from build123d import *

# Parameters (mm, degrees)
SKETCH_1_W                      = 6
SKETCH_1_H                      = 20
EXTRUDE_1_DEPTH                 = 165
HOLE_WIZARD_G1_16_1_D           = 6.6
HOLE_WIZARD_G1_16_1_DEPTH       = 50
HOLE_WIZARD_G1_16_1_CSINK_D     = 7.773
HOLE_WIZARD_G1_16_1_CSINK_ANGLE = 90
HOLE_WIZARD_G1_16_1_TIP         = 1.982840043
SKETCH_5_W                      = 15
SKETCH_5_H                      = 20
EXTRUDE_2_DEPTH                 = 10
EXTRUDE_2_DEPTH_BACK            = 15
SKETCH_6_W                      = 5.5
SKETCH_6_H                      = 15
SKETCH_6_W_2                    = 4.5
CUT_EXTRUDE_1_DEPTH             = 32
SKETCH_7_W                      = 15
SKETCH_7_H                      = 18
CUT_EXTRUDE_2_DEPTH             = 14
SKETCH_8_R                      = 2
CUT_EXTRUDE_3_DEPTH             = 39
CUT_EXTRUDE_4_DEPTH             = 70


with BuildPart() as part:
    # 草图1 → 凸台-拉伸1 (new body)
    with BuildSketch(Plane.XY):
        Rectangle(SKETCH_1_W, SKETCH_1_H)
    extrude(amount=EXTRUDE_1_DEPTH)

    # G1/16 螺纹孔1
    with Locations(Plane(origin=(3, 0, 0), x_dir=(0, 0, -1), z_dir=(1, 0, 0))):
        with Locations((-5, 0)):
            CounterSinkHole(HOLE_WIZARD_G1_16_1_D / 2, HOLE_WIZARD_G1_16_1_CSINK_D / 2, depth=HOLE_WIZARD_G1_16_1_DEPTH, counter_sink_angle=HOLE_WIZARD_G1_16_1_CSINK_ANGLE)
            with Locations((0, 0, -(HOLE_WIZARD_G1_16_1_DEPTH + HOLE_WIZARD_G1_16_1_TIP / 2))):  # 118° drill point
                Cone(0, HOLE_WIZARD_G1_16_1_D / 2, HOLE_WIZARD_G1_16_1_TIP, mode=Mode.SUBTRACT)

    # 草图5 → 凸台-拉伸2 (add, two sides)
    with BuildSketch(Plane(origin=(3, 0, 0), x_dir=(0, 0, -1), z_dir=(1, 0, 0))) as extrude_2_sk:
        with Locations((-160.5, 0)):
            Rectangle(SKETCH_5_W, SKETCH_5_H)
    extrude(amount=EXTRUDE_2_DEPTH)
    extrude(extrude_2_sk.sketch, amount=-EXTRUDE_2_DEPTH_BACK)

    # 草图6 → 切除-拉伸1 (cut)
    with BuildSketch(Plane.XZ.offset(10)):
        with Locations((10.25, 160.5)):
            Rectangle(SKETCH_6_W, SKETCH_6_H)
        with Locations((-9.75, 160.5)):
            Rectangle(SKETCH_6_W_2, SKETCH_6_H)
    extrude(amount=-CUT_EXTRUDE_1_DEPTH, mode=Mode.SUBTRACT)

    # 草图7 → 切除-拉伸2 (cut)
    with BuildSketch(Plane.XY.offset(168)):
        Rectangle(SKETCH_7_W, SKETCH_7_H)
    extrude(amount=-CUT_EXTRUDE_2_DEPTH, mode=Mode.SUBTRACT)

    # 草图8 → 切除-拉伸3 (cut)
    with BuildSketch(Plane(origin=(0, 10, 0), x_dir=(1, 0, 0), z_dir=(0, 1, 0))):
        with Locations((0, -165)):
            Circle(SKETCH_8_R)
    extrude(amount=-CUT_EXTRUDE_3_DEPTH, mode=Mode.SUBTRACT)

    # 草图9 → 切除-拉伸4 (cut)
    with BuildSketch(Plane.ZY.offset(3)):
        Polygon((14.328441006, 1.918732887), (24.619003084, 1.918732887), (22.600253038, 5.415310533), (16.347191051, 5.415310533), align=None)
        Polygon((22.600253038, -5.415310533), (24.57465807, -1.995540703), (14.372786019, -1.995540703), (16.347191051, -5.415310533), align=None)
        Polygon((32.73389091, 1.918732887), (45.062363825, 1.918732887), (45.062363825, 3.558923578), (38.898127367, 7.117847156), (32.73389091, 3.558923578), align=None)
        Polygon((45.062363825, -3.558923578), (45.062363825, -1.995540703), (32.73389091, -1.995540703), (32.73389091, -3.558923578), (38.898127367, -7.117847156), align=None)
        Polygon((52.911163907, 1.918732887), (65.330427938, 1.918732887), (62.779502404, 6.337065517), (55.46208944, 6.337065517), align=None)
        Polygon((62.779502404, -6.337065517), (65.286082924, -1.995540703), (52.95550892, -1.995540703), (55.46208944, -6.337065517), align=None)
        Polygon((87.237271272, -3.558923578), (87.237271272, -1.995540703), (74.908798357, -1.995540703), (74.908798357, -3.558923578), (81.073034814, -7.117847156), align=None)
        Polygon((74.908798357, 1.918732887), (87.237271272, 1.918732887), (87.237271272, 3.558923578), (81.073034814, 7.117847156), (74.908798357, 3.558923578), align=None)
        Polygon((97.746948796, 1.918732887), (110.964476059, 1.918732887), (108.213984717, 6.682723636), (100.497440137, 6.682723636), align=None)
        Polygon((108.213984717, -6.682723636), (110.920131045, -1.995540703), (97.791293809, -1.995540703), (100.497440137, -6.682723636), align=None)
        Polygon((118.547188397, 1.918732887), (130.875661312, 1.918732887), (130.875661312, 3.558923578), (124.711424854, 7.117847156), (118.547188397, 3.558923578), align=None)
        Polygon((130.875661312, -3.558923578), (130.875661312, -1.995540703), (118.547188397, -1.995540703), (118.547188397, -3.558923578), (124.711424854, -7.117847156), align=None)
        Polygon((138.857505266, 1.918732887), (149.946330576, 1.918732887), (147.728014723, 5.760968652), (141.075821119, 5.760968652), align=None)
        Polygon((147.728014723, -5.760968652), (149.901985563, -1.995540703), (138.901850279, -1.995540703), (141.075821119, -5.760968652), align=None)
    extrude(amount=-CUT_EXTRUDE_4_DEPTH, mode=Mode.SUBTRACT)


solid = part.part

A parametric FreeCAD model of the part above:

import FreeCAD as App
import Part
import Sketcher

V = App.Vector
Q = App.Units.Quantity

doc = App.newDocument("Part")
params = doc.addObject("Spreadsheet::Sheet", "Params")
for row, (alias, value) in enumerate([
    ("sketch1_width", "6 mm"),
    ("sketch1_height", "20 mm"),
    ("pad1_length", "165 mm"),
    ("sketch2_diameter", "6.6 mm"),
    ("hole_diameter", "6.6 mm"),
    ("hole_depth", "50 mm"),
    ("hole_csink_diameter", "7.773 mm"),
    ("sketch3_width", "20 mm"),
    ("sketch3_height", "15 mm"),
    ("pad2_length", "10 mm"),
    ("pad2_length2", "15 mm"),
    ("sketch4_height", "15 mm"),
    ("sketch4_width", "5.5 mm"),
    ("sketch4_width2", "4.5 mm"),
    ("pocket1_length", "32 mm"),
    ("sketch5_width", "15 mm"),
    ("sketch5_height", "18 mm"),
    ("pocket2_length", "14 mm"),
    ("sketch6_diameter", "4 mm"),
    ("pocket3_length", "39 mm"),
    ("pocket4_length", "70 mm"),
], start=1):
    params.set(f"A{row}", alias)
    params.set(f"B{row}", "=" + value)
    params.setAlias(f"B{row}", alias)

body = doc.addObject("PartDesign::Body", "Body")

sketch1 = body.newObject("Sketcher::SketchObject", "Sketch")
sketch1.AttachmentSupport = (doc.getObject("XY_Plane"), [""])
sketch1.MapMode = "FlatFace"
sketch1.addGeometry(Part.LineSegment(V(-3, 10, 0), V(-3, -10, 0)), False)
sketch1.addGeometry(Part.LineSegment(V(-3, -10, 0), V(3, -10, 0)), False)
sketch1.addGeometry(Part.LineSegment(V(3, -10, 0), V(3, 10, 0)), False)
sketch1.addGeometry(Part.LineSegment(V(3, 10, 0), V(-3, 10, 0)), False)
sketch1.addConstraint(Sketcher.Constraint("Coincident", 0, 2, 1, 1))
sketch1.addConstraint(Sketcher.Constraint("Coincident", 1, 2, 2, 1))
sketch1.addConstraint(Sketcher.Constraint("Coincident", 2, 2, 3, 1))
sketch1.addConstraint(Sketcher.Constraint("Coincident", 3, 2, 0, 1))
sketch1.addConstraint(Sketcher.Constraint("Vertical", 0))
sketch1.addConstraint(Sketcher.Constraint("Horizontal", 1))
sketch1.addConstraint(Sketcher.Constraint("Vertical", 2))
sketch1.addConstraint(Sketcher.Constraint("Horizontal", 3))
sketch1.addConstraint(Sketcher.Constraint("Symmetric", 0, 2, 2, 2, -1, 1))
sketch1.addConstraint(Sketcher.Constraint("DistanceX", 1, 1, 1, 2, Q("6 mm")))
sketch1.addConstraint(Sketcher.Constraint("DistanceY", 0, 2, 0, 1, Q("20 mm")))
sketch1.setExpression("Constraints[9]", "Params.sketch1_width")
sketch1.setExpression("Constraints[10]", "Params.sketch1_height")
pad1 = body.newObject("PartDesign::Pad", "Pad")
pad1.Profile = sketch1
pad1.setExpression("Length", "Params.pad1_length")

sketch2 = body.newObject("Sketcher::SketchObject", "Sketch001")
sketch2.AttachmentSupport = (doc.getObject("YZ_Plane"), [""])
sketch2.MapMode = "FlatFace"
sketch2.AttachmentOffset = App.Placement(V(0, 0, 3), App.Rotation())
sketch2.addGeometry(Part.Circle(V(0, 5, 0), V(0, 0, 1), 3.3), False)
sketch2.addConstraint(Sketcher.Constraint("PointOnObject", 0, 3, -2))
sketch2.addConstraint(Sketcher.Constraint("Diameter", 0, Q("6.6 mm")))
sketch2.addConstraint(Sketcher.Constraint("DistanceY", -1, 1, 0, 3, Q("5 mm")))
sketch2.setExpression("Constraints[1]", "Params.sketch2_diameter")
doc.recompute()
hole = body.newObject("PartDesign::Hole", "Hole")
hole.Profile = sketch2
hole.ThreadType = "None"
hole.setExpression("Diameter", "Params.hole_diameter")
hole.DepthType = "Dimension"
hole.setExpression("Depth", "Params.hole_depth")
hole.DrillPoint = "Angled"
hole.DrillPointAngle = 118
hole.HoleCutType = "Countersink"
hole.setExpression("HoleCutDiameter", "Params.hole_csink_diameter")
hole.HoleCutCountersinkAngle = 90

sketch3 = body.newObject("Sketcher::SketchObject", "Sketch002")
sketch3.AttachmentSupport = (doc.getObject("YZ_Plane"), [""])
sketch3.MapMode = "FlatFace"
sketch3.AttachmentOffset = App.Placement(V(0, 0, 3), App.Rotation())
sketch3.addGeometry(Part.LineSegment(V(10, 168, 0), V(-10, 168, 0)), False)
sketch3.addGeometry(Part.LineSegment(V(-10, 168, 0), V(-10, 153, 0)), False)
sketch3.addGeometry(Part.LineSegment(V(-10, 153, 0), V(10, 153, 0)), False)
sketch3.addGeometry(Part.LineSegment(V(10, 153, 0), V(10, 168, 0)), False)
sketch3.addConstraint(Sketcher.Constraint("Coincident", 0, 2, 1, 1))
sketch3.addConstraint(Sketcher.Constraint("Coincident", 1, 2, 2, 1))
sketch3.addConstraint(Sketcher.Constraint("Coincident", 2, 2, 3, 1))
sketch3.addConstraint(Sketcher.Constraint("Coincident", 3, 2, 0, 1))
sketch3.addConstraint(Sketcher.Constraint("Horizontal", 0))
sketch3.addConstraint(Sketcher.Constraint("Vertical", 1))
sketch3.addConstraint(Sketcher.Constraint("Horizontal", 2))
sketch3.addConstraint(Sketcher.Constraint("Vertical", 3))
sketch3.addConstraint(Sketcher.Constraint("DistanceX", 0, 2, 0, 1, Q("20 mm")))
sketch3.addConstraint(Sketcher.Constraint("DistanceY", 1, 2, 1, 1, Q("15 mm")))
sketch3.addConstraint(Sketcher.Constraint("DistanceX", 0, 2, -1, 1, Q("10 mm")))
sketch3.addConstraint(Sketcher.Constraint("DistanceY", -1, 1, 0, 2, Q("168 mm")))
sketch3.setExpression("Constraints[8]", "Params.sketch3_width")
sketch3.setExpression("Constraints[9]", "Params.sketch3_height")
pad2 = body.newObject("PartDesign::Pad", "Pad001")
pad2.Profile = sketch3
pad2.Type = "TwoLengths"
pad2.setExpression("Length", "Params.pad2_length")
pad2.setExpression("Length2", "Params.pad2_length2")

sketch4 = body.newObject("Sketcher::SketchObject", "Sketch003")
sketch4.AttachmentSupport = (doc.getObject("XZ_Plane"), [""])
sketch4.MapMode = "FlatFace"
sketch4.AttachmentOffset = App.Placement(V(0, 0, 10), App.Rotation())
sketch4.addGeometry(Part.LineSegment(V(7.5, 168, 0), V(7.5, 153, 0)), False)
sketch4.addGeometry(Part.LineSegment(V(7.5, 153, 0), V(13, 153, 0)), False)
sketch4.addGeometry(Part.LineSegment(V(13, 153, 0), V(13, 168, 0)), False)
sketch4.addGeometry(Part.LineSegment(V(13, 168, 0), V(7.5, 168, 0)), False)
sketch4.addGeometry(Part.LineSegment(V(-12, 168, 0), V(-12, 153, 0)), False)
sketch4.addGeometry(Part.LineSegment(V(-12, 153, 0), V(-7.5, 153, 0)), False)
sketch4.addGeometry(Part.LineSegment(V(-7.5, 153, 0), V(-7.5, 168, 0)), False)
sketch4.addGeometry(Part.LineSegment(V(-7.5, 168, 0), V(-12, 168, 0)), False)
sketch4.addConstraint(Sketcher.Constraint("Coincident", 0, 2, 1, 1))
sketch4.addConstraint(Sketcher.Constraint("Coincident", 1, 2, 2, 1))
sketch4.addConstraint(Sketcher.Constraint("Coincident", 2, 2, 3, 1))
sketch4.addConstraint(Sketcher.Constraint("Coincident", 3, 2, 0, 1))
sketch4.addConstraint(Sketcher.Constraint("Coincident", 4, 2, 5, 1))
sketch4.addConstraint(Sketcher.Constraint("Coincident", 5, 2, 6, 1))
sketch4.addConstraint(Sketcher.Constraint("Coincident", 6, 2, 7, 1))
sketch4.addConstraint(Sketcher.Constraint("Coincident", 7, 2, 4, 1))
sketch4.addConstraint(Sketcher.Constraint("Vertical", 0))
sketch4.addConstraint(Sketcher.Constraint("Horizontal", 1))
sketch4.addConstraint(Sketcher.Constraint("Vertical", 2))
sketch4.addConstraint(Sketcher.Constraint("Horizontal", 3))
sketch4.addConstraint(Sketcher.Constraint("Vertical", 4))
sketch4.addConstraint(Sketcher.Constraint("Horizontal", 5))
sketch4.addConstraint(Sketcher.Constraint("Vertical", 6))
sketch4.addConstraint(Sketcher.Constraint("Horizontal", 7))
sketch4.addConstraint(Sketcher.Constraint("Symmetric", 0, 2, 5, 2, -2))
sketch4.addConstraint(Sketcher.Constraint("Horizontal", 3, 2, 6, 2))
sketch4.addConstraint(Sketcher.Constraint("DistanceY", 0, 2, 0, 1, Q("15 mm")))
sketch4.addConstraint(Sketcher.Constraint("DistanceX", 1, 1, 1, 2, Q("5.5 mm")))
sketch4.addConstraint(Sketcher.Constraint("DistanceX", 5, 1, 5, 2, Q("4.5 mm")))
sketch4.addConstraint(Sketcher.Constraint("DistanceY", -1, 1, 0, 2, Q("153 mm")))
sketch4.addConstraint(Sketcher.Constraint("DistanceX", -1, 1, 1, 2, Q("13 mm")))
sketch4.setExpression("Constraints[18]", "Params.sketch4_height")
sketch4.setExpression("Constraints[19]", "Params.sketch4_width")
sketch4.setExpression("Constraints[20]", "Params.sketch4_width2")
pocket1 = body.newObject("PartDesign::Pocket", "Pocket")
pocket1.Profile = sketch4
pocket1.setExpression("Length", "Params.pocket1_length")

sketch5 = body.newObject("Sketcher::SketchObject", "Sketch004")
sketch5.AttachmentSupport = (doc.getObject("XY_Plane"), [""])
sketch5.MapMode = "FlatFace"
sketch5.AttachmentOffset = App.Placement(V(0, 0, 168), App.Rotation())
sketch5.addGeometry(Part.LineSegment(V(-8, 9, 0), V(-8, -9, 0)), False)
sketch5.addGeometry(Part.LineSegment(V(-8, -9, 0), V(8, -9, 0)), False)
sketch5.addGeometry(Part.LineSegment(V(8, -9, 0), V(8, 9, 0)), False)
sketch5.addGeometry(Part.LineSegment(V(8, 9, 0), V(-8, 9, 0)), False)
sketch5.addConstraint(Sketcher.Constraint("Coincident", 0, 2, 1, 1))
sketch5.addConstraint(Sketcher.Constraint("Coincident", 1, 2, 2, 1))
sketch5.addConstraint(Sketcher.Constraint("Coincident", 2, 2, 3, 1))
sketch5.addConstraint(Sketcher.Constraint("Coincident", 3, 2, 0, 1))
sketch5.addConstraint(Sketcher.Constraint("Vertical", 0))
sketch5.addConstraint(Sketcher.Constraint("Horizontal", 1))
sketch5.addConstraint(Sketcher.Constraint("Vertical", 2))
sketch5.addConstraint(Sketcher.Constraint("Horizontal", 3))
sketch5.addConstraint(Sketcher.Constraint("Symmetric", 0, 2, 2, 2, -1, 1))
sketch5.addConstraint(Sketcher.Constraint("DistanceX", 1, 1, 1, 2, Q("15 mm")))
sketch5.addConstraint(Sketcher.Constraint("DistanceY", 0, 2, 0, 1, Q("18 mm")))
sketch5.setExpression("Constraints[9]", "Params.sketch5_width")
sketch5.setExpression("Constraints[10]", "Params.sketch5_height")
pocket2 = body.newObject("PartDesign::Pocket", "Pocket001")
pocket2.Profile = sketch5
pocket2.setExpression("Length", "Params.pocket2_length")

sketch6 = body.newObject("Sketcher::SketchObject", "Sketch005")
sketch6.AttachmentSupport = (doc.getObject("XZ_Plane"), [""])
sketch6.MapMode = "FlatFace"
sketch6.AttachmentOffset = App.Placement(V(0, 0, -10), App.Rotation())
sketch6.addGeometry(Part.Circle(V(0, 165, 0), V(0, 0, 1), 2), False)
sketch6.addConstraint(Sketcher.Constraint("PointOnObject", 0, 3, -2))
sketch6.addConstraint(Sketcher.Constraint("Diameter", 0, Q("4 mm")))
sketch6.addConstraint(Sketcher.Constraint("DistanceY", -1, 1, 0, 3, Q("165 mm")))
sketch6.setExpression("Constraints[1]", "Params.sketch6_diameter")
pocket3 = body.newObject("PartDesign::Pocket", "Pocket002")
pocket3.Profile = sketch6
pocket3.setExpression("Length", "Params.pocket3_length")
pocket3.Reversed = True

sketch7 = body.newObject("Sketcher::SketchObject", "Sketch006")
sketch7.AttachmentSupport = (doc.getObject("YZ_Plane"), [""])
sketch7.MapMode = "FlatFace"
sketch7.AttachmentOffset = App.Placement(V(0, 0, -3), App.Rotation())
sketch7.addGeometry(Part.LineSegment(V(1.9, 14.3, 0), V(1.9, 24.6, 0)), False)
sketch7.addGeometry(Part.LineSegment(V(1.9, 24.6, 0), V(5.4, 22.6, 0)), False)
sketch7.addGeometry(Part.LineSegment(V(5.4, 22.6, 0), V(5.4, 16.3, 0)), False)
sketch7.addGeometry(Part.LineSegment(V(5.4, 16.3, 0), V(1.9, 14.3, 0)), False)
sketch7.addGeometry(Part.LineSegment(V(-5.4, 22.6, 0), V(-2, 24.6, 0)), False)
sketch7.addGeometry(Part.LineSegment(V(-2, 24.6, 0), V(-2, 14.4, 0)), False)
sketch7.addGeometry(Part.LineSegment(V(-2, 14.4, 0), V(-5.4, 16.3, 0)), False)
sketch7.addGeometry(Part.LineSegment(V(-5.4, 16.3, 0), V(-5.4, 22.6, 0)), False)
sketch7.addGeometry(Part.LineSegment(V(1.9, 32.7, 0), V(1.9, 45.1, 0)), False)
sketch7.addGeometry(Part.LineSegment(V(1.9, 45.1, 0), V(3.6, 45.1, 0)), False)
sketch7.addGeometry(Part.LineSegment(V(3.6, 45.1, 0), V(7.1, 38.9, 0)), False)
sketch7.addGeometry(Part.LineSegment(V(7.1, 38.9, 0), V(3.6, 32.7, 0)), False)
sketch7.addGeometry(Part.LineSegment(V(3.6, 32.7, 0), V(1.9, 32.7, 0)), False)
sketch7.addGeometry(Part.LineSegment(V(-3.6, 45.1, 0), V(-2, 45.1, 0)), False)
sketch7.addGeometry(Part.LineSegment(V(-2, 45.1, 0), V(-2, 32.7, 0)), False)
sketch7.addGeometry(Part.LineSegment(V(-2, 32.7, 0), V(-3.6, 32.7, 0)), False)
sketch7.addGeometry(Part.LineSegment(V(-3.6, 32.7, 0), V(-7.1, 38.9, 0)), False)
sketch7.addGeometry(Part.LineSegment(V(-7.1, 38.9, 0), V(-3.6, 45.1, 0)), False)
sketch7.addGeometry(Part.LineSegment(V(1.9, 52.9, 0), V(1.9, 65.3, 0)), False)
sketch7.addGeometry(Part.LineSegment(V(1.9, 65.3, 0), V(6.3, 62.8, 0)), False)
sketch7.addGeometry(Part.LineSegment(V(6.3, 62.8, 0), V(6.3, 55.5, 0)), False)
sketch7.addGeometry(Part.LineSegment(V(6.3, 55.5, 0), V(1.9, 52.9, 0)), False)
sketch7.addGeometry(Part.LineSegment(V(-6.3, 62.8, 0), V(-2, 65.3, 0)), False)
sketch7.addGeometry(Part.LineSegment(V(-2, 65.3, 0), V(-2, 53, 0)), False)
sketch7.addGeometry(Part.LineSegment(V(-2, 53, 0), V(-6.3, 55.5, 0)), False)
sketch7.addGeometry(Part.LineSegment(V(-6.3, 55.5, 0), V(-6.3, 62.8, 0)), False)
sketch7.addGeometry(Part.LineSegment(V(-3.6, 87.2, 0), V(-2, 87.2, 0)), False)
sketch7.addGeometry(Part.LineSegment(V(-2, 87.2, 0), V(-2, 74.9, 0)), False)
sketch7.addGeometry(Part.LineSegment(V(-2, 74.9, 0), V(-3.6, 74.9, 0)), False)
sketch7.addGeometry(Part.LineSegment(V(-3.6, 74.9, 0), V(-7.1, 81.1, 0)), False)
sketch7.addGeometry(Part.LineSegment(V(-7.1, 81.1, 0), V(-3.6, 87.2, 0)), False)
sketch7.addGeometry(Part.LineSegment(V(1.9, 74.9, 0), V(1.9, 87.2, 0)), False)
sketch7.addGeometry(Part.LineSegment(V(1.9, 87.2, 0), V(3.6, 87.2, 0)), False)
sketch7.addGeometry(Part.LineSegment(V(3.6, 87.2, 0), V(7.1, 81.1, 0)), False)
sketch7.addGeometry(Part.LineSegment(V(7.1, 81.1, 0), V(3.6, 74.9, 0)), False)
sketch7.addGeometry(Part.LineSegment(V(3.6, 74.9, 0), V(1.9, 74.9, 0)), False)
sketch7.addGeometry(Part.LineSegment(V(1.9, 97.7, 0), V(1.9, 111, 0)), False)
sketch7.addGeometry(Part.LineSegment(V(1.9, 111, 0), V(6.7, 108.2, 0)), False)
sketch7.addGeometry(Part.LineSegment(V(6.7, 108.2, 0), V(6.7, 100.5, 0)), False)
sketch7.addGeometry(Part.LineSegment(V(6.7, 100.5, 0), V(1.9, 97.7, 0)), False)
sketch7.addGeometry(Part.LineSegment(V(-6.7, 108.2, 0), V(-2, 110.9, 0)), False)
sketch7.addGeometry(Part.LineSegment(V(-2, 110.9, 0), V(-2, 97.8, 0)), False)
sketch7.addGeometry(Part.LineSegment(V(-2, 97.8, 0), V(-6.7, 100.5, 0)), False)
sketch7.addGeometry(Part.LineSegment(V(-6.7, 100.5, 0), V(-6.7, 108.2, 0)), False)
sketch7.addGeometry(Part.LineSegment(V(1.9, 118.5, 0), V(1.9, 130.9, 0)), False)
sketch7.addGeometry(Part.LineSegment(V(1.9, 130.9, 0), V(3.6, 130.9, 0)), False)
sketch7.addGeometry(Part.LineSegment(V(3.6, 130.9, 0), V(7.1, 124.7, 0)), False)
sketch7.addGeometry(Part.LineSegment(V(7.1, 124.7, 0), V(3.6, 118.5, 0)), False)
sketch7.addGeometry(Part.LineSegment(V(3.6, 118.5, 0), V(1.9, 118.5, 0)), False)
sketch7.addGeometry(Part.LineSegment(V(-3.6, 130.9, 0), V(-2, 130.9, 0)), False)
sketch7.addGeometry(Part.LineSegment(V(-2, 130.9, 0), V(-2, 118.5, 0)), False)
sketch7.addGeometry(Part.LineSegment(V(-2, 118.5, 0), V(-3.6, 118.5, 0)), False)
sketch7.addGeometry(Part.LineSegment(V(-3.6, 118.5, 0), V(-7.1, 124.7, 0)), False)
sketch7.addGeometry(Part.LineSegment(V(-7.1, 124.7, 0), V(-3.6, 130.9, 0)), False)
sketch7.addGeometry(Part.LineSegment(V(1.9, 138.9, 0), V(1.9, 149.9, 0)), False)
sketch7.addGeometry(Part.LineSegment(V(1.9, 149.9, 0), V(5.8, 147.7, 0)), False)
sketch7.addGeometry(Part.LineSegment(V(5.8, 147.7, 0), V(5.8, 141.1, 0)), False)
sketch7.addGeometry(Part.LineSegment(V(5.8, 141.1, 0), V(1.9, 138.9, 0)), False)
sketch7.addGeometry(Part.LineSegment(V(-5.8, 147.7, 0), V(-2, 149.9, 0)), False)
sketch7.addGeometry(Part.LineSegment(V(-2, 149.9, 0), V(-2, 138.9, 0)), False)
sketch7.addGeometry(Part.LineSegment(V(-2, 138.9, 0), V(-5.8, 141.1, 0)), False)
sketch7.addGeometry(Part.LineSegment(V(-5.8, 141.1, 0), V(-5.8, 147.7, 0)), False)
sketch7.addConstraint(Sketcher.Constraint("Coincident", 0, 2, 1, 1))
sketch7.addConstraint(Sketcher.Constraint("Coincident", 1, 2, 2, 1))
sketch7.addConstraint(Sketcher.Constraint("Coincident", 2, 2, 3, 1))
sketch7.addConstraint(Sketcher.Constraint("Coincident", 3, 2, 0, 1))
sketch7.addConstraint(Sketcher.Constraint("Coincident", 4, 2, 5, 1))
sketch7.addConstraint(Sketcher.Constraint("Coincident", 5, 2, 6, 1))
sketch7.addConstraint(Sketcher.Constraint("Coincident", 6, 2, 7, 1))
sketch7.addConstraint(Sketcher.Constraint("Coincident", 7, 2, 4, 1))
sketch7.addConstraint(Sketcher.Constraint("Coincident", 8, 2, 9, 1))
sketch7.addConstraint(Sketcher.Constraint("Coincident", 9, 2, 10, 1))
sketch7.addConstraint(Sketcher.Constraint("Coincident", 10, 2, 11, 1))
sketch7.addConstraint(Sketcher.Constraint("Coincident", 11, 2, 12, 1))
sketch7.addConstraint(Sketcher.Constraint("Coincident", 12, 2, 8, 1))
sketch7.addConstraint(Sketcher.Constraint("Coincident", 13, 2, 14, 1))
sketch7.addConstraint(Sketcher.Constraint("Coincident", 14, 2, 15, 1))
sketch7.addConstraint(Sketcher.Constraint("Coincident", 15, 2, 16, 1))
sketch7.addConstraint(Sketcher.Constraint("Coincident", 16, 2, 17, 1))
sketch7.addConstraint(Sketcher.Constraint("Coincident", 17, 2, 13, 1))
sketch7.addConstraint(Sketcher.Constraint("Coincident", 18, 2, 19, 1))
sketch7.addConstraint(Sketcher.Constraint("Coincident", 19, 2, 20, 1))
sketch7.addConstraint(Sketcher.Constraint("Coincident", 20, 2, 21, 1))
sketch7.addConstraint(Sketcher.Constraint("Coincident", 21, 2, 18, 1))
sketch7.addConstraint(Sketcher.Constraint("Coincident", 22, 2, 23, 1))
sketch7.addConstraint(Sketcher.Constraint("Coincident", 23, 2, 24, 1))
sketch7.addConstraint(Sketcher.Constraint("Coincident", 24, 2, 25, 1))
sketch7.addConstraint(Sketcher.Constraint("Coincident", 25, 2, 22, 1))
sketch7.addConstraint(Sketcher.Constraint("Coincident", 26, 2, 27, 1))
sketch7.addConstraint(Sketcher.Constraint("Coincident", 27, 2, 28, 1))
sketch7.addConstraint(Sketcher.Constraint("Coincident", 28, 2, 29, 1))
sketch7.addConstraint(Sketcher.Constraint("Coincident", 29, 2, 30, 1))
sketch7.addConstraint(Sketcher.Constraint("Coincident", 30, 2, 26, 1))
sketch7.addConstraint(Sketcher.Constraint("Coincident", 31, 2, 32, 1))
sketch7.addConstraint(Sketcher.Constraint("Coincident", 32, 2, 33, 1))
sketch7.addConstraint(Sketcher.Constraint("Coincident", 33, 2, 34, 1))
sketch7.addConstraint(Sketcher.Constraint("Coincident", 34, 2, 35, 1))
sketch7.addConstraint(Sketcher.Constraint("Coincident", 35, 2, 31, 1))
sketch7.addConstraint(Sketcher.Constraint("Coincident", 36, 2, 37, 1))
sketch7.addConstraint(Sketcher.Constraint("Coincident", 37, 2, 38, 1))
sketch7.addConstraint(Sketcher.Constraint("Coincident", 38, 2, 39, 1))
sketch7.addConstraint(Sketcher.Constraint("Coincident", 39, 2, 36, 1))
sketch7.addConstraint(Sketcher.Constraint("Coincident", 40, 2, 41, 1))
sketch7.addConstraint(Sketcher.Constraint("Coincident", 41, 2, 42, 1))
sketch7.addConstraint(Sketcher.Constraint("Coincident", 42, 2, 43, 1))
sketch7.addConstraint(Sketcher.Constraint("Coincident", 43, 2, 40, 1))
sketch7.addConstraint(Sketcher.Constraint("Coincident", 44, 2, 45, 1))
sketch7.addConstraint(Sketcher.Constraint("Coincident", 45, 2, 46, 1))
sketch7.addConstraint(Sketcher.Constraint("Coincident", 46, 2, 47, 1))
sketch7.addConstraint(Sketcher.Constraint("Coincident", 47, 2, 48, 1))
sketch7.addConstraint(Sketcher.Constraint("Coincident", 48, 2, 44, 1))
sketch7.addConstraint(Sketcher.Constraint("Coincident", 49, 2, 50, 1))
sketch7.addConstraint(Sketcher.Constraint("Coincident", 50, 2, 51, 1))
sketch7.addConstraint(Sketcher.Constraint("Coincident", 51, 2, 52, 1))
sketch7.addConstraint(Sketcher.Constraint("Coincident", 52, 2, 53, 1))
sketch7.addConstraint(Sketcher.Constraint("Coincident", 53, 2, 49, 1))
sketch7.addConstraint(Sketcher.Constraint("Coincident", 54, 2, 55, 1))
sketch7.addConstraint(Sketcher.Constraint("Coincident", 55, 2, 56, 1))
sketch7.addConstraint(Sketcher.Constraint("Coincident", 56, 2, 57, 1))
sketch7.addConstraint(Sketcher.Constraint("Coincident", 57, 2, 54, 1))
sketch7.addConstraint(Sketcher.Constraint("Coincident", 58, 2, 59, 1))
sketch7.addConstraint(Sketcher.Constraint("Coincident", 59, 2, 60, 1))
sketch7.addConstraint(Sketcher.Constraint("Coincident", 60, 2, 61, 1))
sketch7.addConstraint(Sketcher.Constraint("Coincident", 61, 2, 58, 1))
sketch7.addConstraint(Sketcher.Constraint("Vertical", 0))
sketch7.addConstraint(Sketcher.Constraint("Vertical", 2))
sketch7.addConstraint(Sketcher.Constraint("Vertical", 5))
sketch7.addConstraint(Sketcher.Constraint("Vertical", 7))
sketch7.addConstraint(Sketcher.Constraint("Vertical", 8))
sketch7.addConstraint(Sketcher.Constraint("Horizontal", 9))
sketch7.addConstraint(Sketcher.Constraint("Horizontal", 12))
sketch7.addConstraint(Sketcher.Constraint("Horizontal", 13))
sketch7.addConstraint(Sketcher.Constraint("Vertical", 14))
sketch7.addConstraint(Sketcher.Constraint("Horizontal", 15))
sketch7.addConstraint(Sketcher.Constraint("Vertical", 18))
sketch7.addConstraint(Sketcher.Constraint("Vertical", 20))
sketch7.addConstraint(Sketcher.Constraint("Vertical", 23))
sketch7.addConstraint(Sketcher.Constraint("Vertical", 25))
sketch7.addConstraint(Sketcher.Constraint("Horizontal", 26))
sketch7.addConstraint(Sketcher.Constraint("Vertical", 27))
sketch7.addConstraint(Sketcher.Constraint("Horizontal", 28))
sketch7.addConstraint(Sketcher.Constraint("Vertical", 31))
sketch7.addConstraint(Sketcher.Constraint("Horizontal", 32))
sketch7.addConstraint(Sketcher.Constraint("Horizontal", 35))
sketch7.addConstraint(Sketcher.Constraint("Vertical", 36))
sketch7.addConstraint(Sketcher.Constraint("Vertical", 38))
sketch7.addConstraint(Sketcher.Constraint("Vertical", 41))
sketch7.addConstraint(Sketcher.Constraint("Vertical", 43))
sketch7.addConstraint(Sketcher.Constraint("Vertical", 44))
sketch7.addConstraint(Sketcher.Constraint("Horizontal", 45))
sketch7.addConstraint(Sketcher.Constraint("Horizontal", 48))
sketch7.addConstraint(Sketcher.Constraint("Horizontal", 49))
sketch7.addConstraint(Sketcher.Constraint("Vertical", 50))
sketch7.addConstraint(Sketcher.Constraint("Horizontal", 51))
sketch7.addConstraint(Sketcher.Constraint("Vertical", 54))
sketch7.addConstraint(Sketcher.Constraint("Vertical", 56))
sketch7.addConstraint(Sketcher.Constraint("Vertical", 59))
sketch7.addConstraint(Sketcher.Constraint("Vertical", 61))
sketch7.addConstraint(Sketcher.Constraint("Symmetric", 2, 2, 6, 2, -2))
sketch7.addConstraint(Sketcher.Constraint("Symmetric", 11, 2, 15, 2, -2))
sketch7.addConstraint(Sketcher.Constraint("Symmetric", 10, 2, 16, 2, -2))
sketch7.addConstraint(Sketcher.Constraint("Symmetric", 9, 2, 17, 2, -2))
sketch7.addConstraint(Sketcher.Constraint("Symmetric", 20, 2, 24, 2, -2))
sketch7.addConstraint(Sketcher.Constraint("Symmetric", 30, 2, 32, 2, -2))
sketch7.addConstraint(Sketcher.Constraint("Symmetric", 29, 2, 33, 2, -2))
sketch7.addConstraint(Sketcher.Constraint("Symmetric", 28, 2, 34, 2, -2))
sketch7.addConstraint(Sketcher.Constraint("Symmetric", 38, 2, 42, 2, -2))
sketch7.addConstraint(Sketcher.Constraint("Symmetric", 47, 2, 51, 2, -2))
sketch7.addConstraint(Sketcher.Constraint("Symmetric", 46, 2, 52, 2, -2))
sketch7.addConstraint(Sketcher.Constraint("Symmetric", 45, 2, 53, 2, -2))
sketch7.addConstraint(Sketcher.Constraint("Symmetric", 56, 2, 60, 2, -2))
sketch7.addConstraint(Sketcher.Constraint("Parallel", 3, 4))
sketch7.addConstraint(Sketcher.Constraint("Parallel", 1, 6))
sketch7.addConstraint(Sketcher.Constraint("Perpendicular", 4, 10))
sketch7.addConstraint(Sketcher.Constraint("Perpendicular", 6, 11))
sketch7.addConstraint(Sketcher.Constraint("Parallel", 10, 16))
sketch7.addConstraint(Sketcher.Constraint("Perpendicular", 17, 19))
sketch7.addConstraint(Sketcher.Constraint("Perpendicular", 16, 21))
sketch7.addConstraint(Sketcher.Constraint("Parallel", 21, 22))
sketch7.addConstraint(Sketcher.Constraint("Parallel", 19, 24))
sketch7.addConstraint(Sketcher.Constraint("Perpendicular", 22, 29))
sketch7.addConstraint(Sketcher.Constraint("Perpendicular", 24, 30))
sketch7.addConstraint(Sketcher.Constraint("Perpendicular", 34, 37))
sketch7.addConstraint(Sketcher.Constraint("Perpendicular", 33, 39))
sketch7.addConstraint(Sketcher.Constraint("Parallel", 39, 40))
sketch7.addConstraint(Sketcher.Constraint("Parallel", 37, 42))
sketch7.addConstraint(Sketcher.Constraint("Perpendicular", 40, 46))
sketch7.addConstraint(Sketcher.Constraint("Perpendicular", 42, 47))
sketch7.addConstraint(Sketcher.Constraint("Perpendicular", 53, 55))
sketch7.addConstraint(Sketcher.Constraint("Perpendicular", 52, 57))
sketch7.addConstraint(Sketcher.Constraint("Parallel", 57, 58))
sketch7.addConstraint(Sketcher.Constraint("Parallel", 55, 60))
sketch7.addConstraint(Sketcher.Constraint("Horizontal", 1, 2, 7, 2))
sketch7.addConstraint(Sketcher.Constraint("Horizontal", 19, 2, 25, 2))
sketch7.addConstraint(Sketcher.Constraint("Horizontal", 37, 2, 43, 2))
sketch7.addConstraint(Sketcher.Constraint("Horizontal", 55, 2, 61, 2))
sketch7.addConstraint(Sketcher.Constraint("Vertical", 3, 2, 8, 2))
sketch7.addConstraint(Sketcher.Constraint("Vertical", 9, 2, 11, 2))
sketch7.addConstraint(Sketcher.Constraint("Vertical", 5, 2, 13, 2))
sketch7.addConstraint(Sketcher.Constraint("Vertical", 12, 2, 18, 2))
sketch7.addConstraint(Sketcher.Constraint("Vertical", 14, 2, 22, 2))
sketch7.addConstraint(Sketcher.Constraint("Vertical", 23, 2, 26, 2))
sketch7.addConstraint(Sketcher.Constraint("Vertical", 17, 2, 28, 2))
sketch7.addConstraint(Sketcher.Constraint("Vertical", 16, 2, 29, 2))
sketch7.addConstraint(Sketcher.Constraint("Vertical", 28, 2, 30, 2))
sketch7.addConstraint(Sketcher.Constraint("Vertical", 21, 2, 31, 2))
sketch7.addConstraint(Sketcher.Constraint("Vertical", 35, 2, 36, 2))
sketch7.addConstraint(Sketcher.Constraint("Vertical", 27, 2, 40, 2))
sketch7.addConstraint(Sketcher.Constraint("Vertical", 39, 2, 44, 2))
sketch7.addConstraint(Sketcher.Constraint("Vertical", 34, 2, 45, 2))
sketch7.addConstraint(Sketcher.Constraint("Vertical", 33, 2, 46, 2))
sketch7.addConstraint(Sketcher.Constraint("Vertical", 45, 2, 47, 2))
sketch7.addConstraint(Sketcher.Constraint("Vertical", 41, 2, 49, 2))
sketch7.addConstraint(Sketcher.Constraint("Vertical", 48, 2, 54, 2))
sketch7.addConstraint(Sketcher.Constraint("Vertical", 50, 2, 58, 2))
sketch7.addConstraint(Sketcher.Constraint("Angle", 1, Q("-30 deg")))
sketch7.addConstraint(Sketcher.Constraint("Distance", 1, Q("4.0375 mm")))
sketch7.addConstraint(Sketcher.Constraint("DistanceX", 9, 1, 9, 2, Q("1.640191 mm")))
sketch7.addConstraint(Sketcher.Constraint("DistanceY", 2, 2, 2, 1, Q("6.253062 mm")))
sketch7.addConstraint(Sketcher.Constraint("DistanceY", -1, 1, 27, 2, Q("74.908798 mm")))
sketch7.addConstraint(Sketcher.Constraint("Distance", 4, Q("3.94881 mm")))
sketch7.addConstraint(Sketcher.Constraint("Distance", 19, Q("5.101851 mm")))
sketch7.addConstraint(Sketcher.Constraint("Distance", 55, Q("4.436632 mm")))
sketch7.addConstraint(Sketcher.Constraint("DistanceY", 8, 1, 8, 2, Q("12.328473 mm")))
sketch7.addConstraint(Sketcher.Constraint("DistanceY", 18, 1, 18, 2, Q("12.419264 mm")))
sketch7.addConstraint(Sketcher.Constraint("DistanceY", 36, 1, 36, 2, Q("13.217527 mm")))
sketch7.addConstraint(Sketcher.Constraint("DistanceY", 38, 2, 38, 1, Q("7.716545 mm")))
sketch7.addConstraint(Sketcher.Constraint("DistanceY", 54, 1, 54, 2, Q("11.088825 mm")))
sketch7.addConstraint(Sketcher.Constraint("DistanceX", -1, 1, 1, 2, Q("5.415311 mm")))
sketch7.addConstraint(Sketcher.Constraint("DistanceY", -1, 1, 2, 2, Q("16.347191 mm")))
sketch7.addConstraint(Sketcher.Constraint("DistanceY", -1, 1, 11, 2, Q("32.733891 mm")))
sketch7.addConstraint(Sketcher.Constraint("DistanceY", -1, 1, 20, 2, Q("55.462089 mm")))
sketch7.addConstraint(Sketcher.Constraint("DistanceY", -1, 1, 38, 2, Q("100.49744 mm")))
sketch7.addConstraint(Sketcher.Constraint("DistanceY", -1, 1, 44, 2, Q("130.875661 mm")))
sketch7.addConstraint(Sketcher.Constraint("DistanceY", -1, 1, 54, 2, Q("149.946331 mm")))
pocket4 = body.newObject("PartDesign::Pocket", "Pocket003")
pocket4.Profile = sketch7
pocket4.setExpression("Length", "Params.pocket4_length")
pocket4.Reversed = True

doc.recompute()
